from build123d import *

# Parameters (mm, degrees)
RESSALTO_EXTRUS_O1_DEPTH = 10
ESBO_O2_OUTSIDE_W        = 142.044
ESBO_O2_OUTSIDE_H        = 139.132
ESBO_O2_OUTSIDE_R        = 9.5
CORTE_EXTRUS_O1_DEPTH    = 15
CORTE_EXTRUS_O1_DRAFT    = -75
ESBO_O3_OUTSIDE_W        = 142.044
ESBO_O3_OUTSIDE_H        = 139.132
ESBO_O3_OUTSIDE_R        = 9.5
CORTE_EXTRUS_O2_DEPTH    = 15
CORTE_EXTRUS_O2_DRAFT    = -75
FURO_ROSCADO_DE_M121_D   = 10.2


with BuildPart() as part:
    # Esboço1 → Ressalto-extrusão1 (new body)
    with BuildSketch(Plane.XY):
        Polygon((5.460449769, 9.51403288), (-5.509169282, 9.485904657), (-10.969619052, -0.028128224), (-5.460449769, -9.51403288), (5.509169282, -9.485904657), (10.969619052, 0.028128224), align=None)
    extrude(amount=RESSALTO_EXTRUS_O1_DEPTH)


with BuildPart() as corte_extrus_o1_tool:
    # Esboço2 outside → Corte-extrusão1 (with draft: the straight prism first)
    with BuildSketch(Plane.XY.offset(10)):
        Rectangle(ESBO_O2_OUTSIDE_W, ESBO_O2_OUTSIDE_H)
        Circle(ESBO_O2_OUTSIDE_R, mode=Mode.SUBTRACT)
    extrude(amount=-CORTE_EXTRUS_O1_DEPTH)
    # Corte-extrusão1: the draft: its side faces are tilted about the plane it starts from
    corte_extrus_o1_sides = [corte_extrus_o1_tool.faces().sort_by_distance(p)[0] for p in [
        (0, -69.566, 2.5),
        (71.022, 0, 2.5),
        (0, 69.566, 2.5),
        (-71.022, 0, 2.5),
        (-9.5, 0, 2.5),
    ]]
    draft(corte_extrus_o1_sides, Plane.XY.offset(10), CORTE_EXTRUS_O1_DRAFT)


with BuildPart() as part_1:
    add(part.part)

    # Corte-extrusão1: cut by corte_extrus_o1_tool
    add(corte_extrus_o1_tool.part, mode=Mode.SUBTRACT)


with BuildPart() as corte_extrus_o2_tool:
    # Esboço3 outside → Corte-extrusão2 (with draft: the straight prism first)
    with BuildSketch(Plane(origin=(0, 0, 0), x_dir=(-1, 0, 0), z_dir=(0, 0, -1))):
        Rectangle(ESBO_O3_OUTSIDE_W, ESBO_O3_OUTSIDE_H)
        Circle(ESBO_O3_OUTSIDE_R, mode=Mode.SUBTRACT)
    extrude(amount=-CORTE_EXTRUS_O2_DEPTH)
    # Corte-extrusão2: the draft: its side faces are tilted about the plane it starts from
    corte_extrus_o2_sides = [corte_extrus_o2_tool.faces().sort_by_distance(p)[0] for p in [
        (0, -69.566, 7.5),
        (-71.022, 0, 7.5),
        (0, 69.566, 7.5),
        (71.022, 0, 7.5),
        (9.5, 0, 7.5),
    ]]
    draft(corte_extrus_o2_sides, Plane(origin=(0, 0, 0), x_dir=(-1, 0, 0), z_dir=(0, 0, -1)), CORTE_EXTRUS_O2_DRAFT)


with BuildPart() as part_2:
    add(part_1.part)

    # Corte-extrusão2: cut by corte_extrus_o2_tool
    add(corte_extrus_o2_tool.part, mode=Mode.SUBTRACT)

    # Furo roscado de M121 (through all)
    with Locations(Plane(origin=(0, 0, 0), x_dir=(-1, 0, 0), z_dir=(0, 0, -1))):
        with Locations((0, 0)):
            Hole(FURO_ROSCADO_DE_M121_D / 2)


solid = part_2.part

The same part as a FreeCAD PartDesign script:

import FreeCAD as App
import Part
import Sketcher
from FreeCAD import Vector
Q = App.Units.Quantity


def faces_at(feature, points):
    """Names of the faces that lie closest to the given points."""
    faces = feature.Shape.Faces
    near = lambda p: min(range(len(faces)), key=lambda i: faces[i].distToShape(Part.Vertex(*p))[0])
    return sorted({f"Face{near(p) + 1}" for p in points})


def add_polygon(sketch, points):
    """Adds a closed chain of lines whose ends are joined by coincident constraints."""
    first, n = sketch.GeometryCount, len(points)
    for a, b in zip(points, points[1:] + points[:1]):
        sketch.addGeometry(Part.LineSegment(App.Vector(*a, 0), App.Vector(*b, 0)), False)
    for i in range(n):
        sketch.addConstraint(Sketcher.Constraint("Coincident", first + i, 2, first + (i + 1) % n, 1))

doc = App.newDocument("Part")
params = doc.addObject("Spreadsheet::Sheet", "Params")
for row, (alias, value) in enumerate([
    ("pad1_length", "10 mm"),
    ("sketch2_diameter", "19 mm"),
    ("pad2_length", "15 mm"),
    ("draft_angle", "75 deg"),
    ("sketch3_diameter", "19 mm"),
    ("pad3_length", "15 mm"),
    ("draft2_angle", "75 deg"),
    ("sketch4_diameter", "10.2 mm"),
    ("hole_diameter", "10.2 mm"),
], start=1):
    params.set(f"A{row}", alias)
    params.set(f"B{row}", "=" + value)
    params.setAlias(f"B{row}", alias)

body = doc.addObject("PartDesign::Body", "Body")

sketch1 = doc.addObject("Sketcher::SketchObject", "Sketch")
body.addObject(sketch1)
sketch1.AttachmentSupport = (doc.XY_Plane, [""])
sketch1.MapMode = "FlatFace"
add_polygon(sketch1, [(5, 10), (-6, 9), (-11, 0), (-5, -10), (6, -9), (11, 0)])
sketch1.addConstraint([
    Sketcher.Constraint("Symmetric", 0, 2, 3, 2, -1, 1),
    Sketcher.Constraint("Symmetric", 1, 2, 4, 2, -1, 1),
    Sketcher.Constraint("Symmetric", 2, 2, 5, 2, -1, 1),
    Sketcher.Constraint("Equal", 0, 1),
    Sketcher.Constraint("Equal", 1, 2),
    Sketcher.Constraint("DistanceX", 2, 2, 5, 2, Q("10.9209 mm")),
    Sketcher.Constraint("DistanceX", 0, 2, -1, 1, Q("5.509169 mm")),
    Sketcher.Constraint("DistanceX", 1, 2, -1, 1, Q("10.969619 mm")),
    Sketcher.Constraint("DistanceY", 1, 2, -1, 1, Q("0.028128 mm")),
])
pad1 = doc.addObject("PartDesign::Pad", "Pad")
body.addObject(pad1)
pad1.Profile = sketch1
pad1.setExpression("Length", "Params.pad1_length")
body2 = doc.addObject("PartDesign::Body", "Body001")

sketch2 = doc.addObject("Sketcher::SketchObject", "Sketch001")
body2.addObject(sketch2)
sketch2.AttachmentSupport = (doc.getObject("XY_Plane001"), [""])
sketch2.MapMode = "FlatFace"
sketch2.AttachmentOffset = App.Placement(Vector(0, 0, 10), App.Rotation())
add_polygon(sketch2, [(-71, 70), (-71, -70), (71, -70), (71, 70)])
sketch2.addGeometry(Part.Circle(Vector(0, 0, 0), Vector(0, 0, 1), 10), False)
sketch2.addConstraint([
    Sketcher.Constraint("Vertical", 0),
    Sketcher.Constraint("Horizontal", 1),
    Sketcher.Constraint("Vertical", 2),
    Sketcher.Constraint("Horizontal", 3),
    Sketcher.Constraint("Coincident", 4, 3, -1, 1),
    Sketcher.Constraint("Symmetric", 0, 2, 2, 2, -1, 1),
    Sketcher.Constraint("Diameter", 4, Q("19 mm")),
    Sketcher.Constraint("DistanceX", 1, 1, 1, 2, Q("142.044 mm")),
    Sketcher.Constraint("DistanceY", 0, 2, 0, 1, Q("139.132 mm")),
])
sketch2.setExpression("Constraints[10]", "Params.sketch2_diameter")
pad2 = doc.addObject("PartDesign::Pad", "Pad001")
body2.addObject(pad2)
pad2.Profile = sketch2
pad2.setExpression("Length", "Params.pad2_length")
pad2.Reversed = True
doc.recompute()

datumplane = doc.addObject("PartDesign::Plane", "DatumPlane")
body2.addObject(datumplane)
datumplane.AttachmentSupport = (doc.getObject("XY_Plane001"), [""])
datumplane.MapMode = "FlatFace"
datumplane.AttachmentOffset = App.Placement(Vector(0, 0, 10), App.Rotation())
draft = doc.addObject("PartDesign::Draft", "Draft")
body2.addObject(draft)
draft.Base = (pad2, faces_at(pad2, [
    (0, -69.566, 2.5),
    (71.022, 0, 2.5),
    (0, 69.566, 2.5),
    (-71.022, 0, 2.5),
    (-9.5, 0, 2.5),
]))
draft.NeutralPlane = (datumplane, [""])
draft.setExpression("Angle", "Params.draft_angle")
draft.Reversed = True
doc.recompute()

boolean = doc.addObject("PartDesign::Boolean", "Boolean")
body.addObject(boolean)
boolean.Type = "Cut"
boolean.addObjects([body2])
body3 = doc.addObject("PartDesign::Body", "Body002")

sketch3 = doc.addObject("Sketcher::SketchObject", "Sketch002")
body3.addObject(sketch3)
sketch3.AttachmentSupport = (doc.getObject("XY_Plane002"), [""])
sketch3.MapMode = "FlatFace"
add_polygon(sketch3, [(71, 70), (71, -70), (-71, -70), (-71, 70)])
sketch3.addGeometry(Part.Circle(Vector(0, 0, 0), Vector(0, 0, 1), 10), False)
sketch3.addConstraint([
    Sketcher.Constraint("Vertical", 0),
    Sketcher.Constraint("Horizontal", 1),
    Sketcher.Constraint("Vertical", 2),
    Sketcher.Constraint("Horizontal", 3),
    Sketcher.Constraint("Coincident", 4, 3, -1, 1),
    Sketcher.Constraint("Symmetric", 0, 2, 2, 2, -1, 1),
    Sketcher.Constraint("Diameter", 4, Q("19 mm")),
    Sketcher.Constraint("DistanceX", 1, 2, 1, 1, Q("142.044 mm")),
    Sketcher.Constraint("DistanceY", 0, 2, 0, 1, Q("139.132 mm")),
])
sketch3.setExpression("Constraints[10]", "Params.sketch3_diameter")
pad3 = doc.addObject("PartDesign::Pad", "Pad002")
body3.addObject(pad3)
pad3.Profile = sketch3
pad3.setExpression("Length", "Params.pad3_length")
doc.recompute()

draft2 = doc.addObject("PartDesign::Draft", "Draft001")
body3.addObject(draft2)
draft2.Base = (pad3, faces_at(pad3, [
    (0, -69.566, 7.5),
    (-71.022, 0, 7.5),
    (0, 69.566, 7.5),
    (71.022, 0, 7.5),
    (9.5, 0, 7.5),
]))
draft2.NeutralPlane = (doc.getObject("XY_Plane002"), [""])
draft2.setExpression("Angle", "Params.draft2_angle")
draft2.Reversed = False
doc.recompute()

boolean2 = doc.addObject("PartDesign::Boolean", "Boolean001")
body.addObject(boolean2)
boolean2.Type = "Cut"
boolean2.addObjects([body3])

sketch4 = doc.addObject("Sketcher::SketchObject", "Sketch003")
body.addObject(sketch4)
sketch4.AttachmentSupport = (doc.XY_Plane, [""])
sketch4.MapMode = "FlatFace"
sketch4.addGeometry(Part.Circle(Vector(0, 0, 0), Vector(0, 0, 1), 5), False)
sketch4.addConstraint([
    Sketcher.Constraint("Coincident", 0, 3, -1, 1),
    Sketcher.Constraint("Diameter", 0, Q("10.2 mm")),
])
sketch4.setExpression("Constraints[1]", "Params.sketch4_diameter")
doc.recompute()
hole = doc.addObject("PartDesign::Hole", "Hole")
body.addObject(hole)
hole.Profile = sketch4
hole.ThreadType = "None"
hole.setExpression("Diameter", "Params.hole_diameter")
hole.DepthType = "ThroughAll"
hole.Reversed = True

doc.recompute()
